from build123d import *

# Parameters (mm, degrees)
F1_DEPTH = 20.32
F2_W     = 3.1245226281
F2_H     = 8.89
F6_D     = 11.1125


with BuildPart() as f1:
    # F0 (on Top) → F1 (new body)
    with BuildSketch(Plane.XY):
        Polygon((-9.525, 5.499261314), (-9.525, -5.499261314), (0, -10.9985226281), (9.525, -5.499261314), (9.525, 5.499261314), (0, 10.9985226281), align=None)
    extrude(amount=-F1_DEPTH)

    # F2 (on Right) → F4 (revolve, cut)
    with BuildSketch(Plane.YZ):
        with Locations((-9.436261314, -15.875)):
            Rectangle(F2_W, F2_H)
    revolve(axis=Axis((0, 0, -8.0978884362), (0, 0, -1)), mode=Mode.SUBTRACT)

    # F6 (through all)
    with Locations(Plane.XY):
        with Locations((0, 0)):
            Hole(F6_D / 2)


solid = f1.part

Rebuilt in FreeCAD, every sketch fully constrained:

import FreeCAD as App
import Part
import Sketcher
Q = App.Units.Quantity

doc = App.newDocument("Part")
params = doc.addObject("Spreadsheet::Sheet", "Params")
for row, (alias, value) in enumerate([
    ("pad1_length", "0.8 in"),
    ("sketch2_height", "0.35 in"),
    ("groove_angle", "360 deg"),
    ("sketch3_diameter", "0.4375 in"),
    ("hole_diameter", "0.4375 in"),
], start=1):
    params.set(f"A{row}", alias)
    params.set(f"B{row}", "=" + value)
    params.setAlias(f"B{row}", alias)

body = doc.addObject("PartDesign::Body", "Body")

sketch1 = body.newObject("Sketcher::SketchObject", "Sketch")
sketch1.AttachmentSupport = (doc.getObject("XY_Plane"), [""])
sketch1.MapMode = "FlatFace"
sketch1.addGeometry([
    Part.LineSegment(App.Vector(-9.525, 5.499261, 0), App.Vector(-9.525, -5.499261, 0)),
    Part.LineSegment(App.Vector(-9.525, -5.499261, 0), App.Vector(0, -10.998523, 0)),
    Part.LineSegment(App.Vector(0, -10.998523, 0), App.Vector(9.525, -5.499261, 0)),
    Part.LineSegment(App.Vector(9.525, -5.499261, 0), App.Vector(9.525, 5.499261, 0)),
    Part.LineSegment(App.Vector(9.525, 5.499261, 0), App.Vector(0, 10.998523, 0)),
    Part.LineSegment(App.Vector(0, 10.998523, 0), App.Vector(-9.525, 5.499261, 0)),
], False)
sketch1.addConstraint([
    Sketcher.Constraint("Coincident", 0, 2, 1, 1),
    Sketcher.Constraint("Coincident", 1, 2, 2, 1),
    Sketcher.Constraint("Coincident", 2, 2, 3, 1),
    Sketcher.Constraint("Coincident", 3, 2, 4, 1),
    Sketcher.Constraint("Coincident", 4, 2, 5, 1),
    Sketcher.Constraint("Coincident", 5, 2, 0, 1),
    Sketcher.Constraint("Vertical", 0),
    Sketcher.Constraint("Vertical", 3),
    Sketcher.Constraint("Symmetric", 0, 2, 3, 2, -1, 1),
    Sketcher.Constraint("Symmetric", 1, 2, 4, 2, -1, 1),
    Sketcher.Constraint("PointOnObject", 1, 2, -2),
    Sketcher.Constraint("Parallel", 2, 5),
    Sketcher.Constraint("Horizontal", 0, 2, 2, 2),
    Sketcher.Constraint("Angle", 1, Q("-30 deg")),
    Sketcher.Constraint("DistanceX", 0, 2, 2, 2, Q("0.75 in")),
    Sketcher.Constraint("DistanceY", 0, 2, 0, 1, Q("10.998523 mm")),
])
pad1 = body.newObject("PartDesign::Pad", "Pad")
pad1.Profile = sketch1
pad1.setExpression("Length", "Params.pad1_length")
pad1.Reversed = True

sketch2 = body.newObject("Sketcher::SketchObject", "Sketch001")
sketch2.AttachmentSupport = (doc.getObject("YZ_Plane"), [""])
sketch2.MapMode = "FlatFace"
sketch2.addGeometry([
    Part.LineSegment(App.Vector(-10.998523, -11.43, 0), App.Vector(-10.998523, -20.32, 0)),
    Part.LineSegment(App.Vector(-10.998523, -20.32, 0), App.Vector(-7.874, -20.32, 0)),
    Part.LineSegment(App.Vector(-7.874, -20.32, 0), App.Vector(-7.874, -11.43, 0)),
    Part.LineSegment(App.Vector(-7.874, -11.43, 0), App.Vector(-10.998523, -11.43, 0)),
], False)
sketch2.addConstraint([
    Sketcher.Constraint("Coincident", 0, 2, 1, 1),
    Sketcher.Constraint("Coincident", 1, 2, 2, 1),
    Sketcher.Constraint("Coincident", 2, 2, 3, 1),
    Sketcher.Constraint("Coincident", 3, 2, 0, 1),
    Sketcher.Constraint("Vertical", 0),
    Sketcher.Constraint("Horizontal", 1),
    Sketcher.Constraint("Vertical", 2),
    Sketcher.Constraint("Horizontal", 3),
    Sketcher.Constraint("DistanceY", 0, 2, 0, 1, Q("0.35 in")),
    Sketcher.Constraint("DistanceY", 0, 2, -1, 1, Q("0.8 in")),
    Sketcher.Constraint("DistanceX", 1, 2, -1, 1, Q("0.31 in")),
    Sketcher.Constraint("DistanceX", 1, 1, 1, 2, Q("3.124523 mm")),
])
sketch2.setExpression("Constraints[8]", "Params.sketch2_height")
groove = body.newObject("PartDesign::Groove", "Groove")
groove.Profile = sketch2
groove.ReferenceAxis = (sketch2, ["V_Axis"])
groove.setExpression("Angle", "Params.groove_angle")

sketch3 = body.newObject("Sketcher::SketchObject", "Sketch002")
sketch3.AttachmentSupport = (doc.getObject("XY_Plane"), [""])
sketch3.MapMode = "FlatFace"
sketch3.addGeometry(Part.Circle(App.Vector(0, 0, 0), App.Vector(0, 0, 1), 5.55625), False)
sketch3.addConstraint([
    Sketcher.Constraint("Coincident", 0, 3, -1, 1),
    Sketcher.Constraint("Diameter", 0, Q("0.4375 in")),
])
sketch3.setExpression("Constraints[1]", "Params.sketch3_diameter")
doc.recompute()
hole = body.newObject("PartDesign::Hole", "Hole")
hole.Profile = sketch3
hole.ThreadType = "None"
hole.setExpression("Diameter", "Params.hole_diameter")
hole.DepthType = "ThroughAll"

doc.recompute()
